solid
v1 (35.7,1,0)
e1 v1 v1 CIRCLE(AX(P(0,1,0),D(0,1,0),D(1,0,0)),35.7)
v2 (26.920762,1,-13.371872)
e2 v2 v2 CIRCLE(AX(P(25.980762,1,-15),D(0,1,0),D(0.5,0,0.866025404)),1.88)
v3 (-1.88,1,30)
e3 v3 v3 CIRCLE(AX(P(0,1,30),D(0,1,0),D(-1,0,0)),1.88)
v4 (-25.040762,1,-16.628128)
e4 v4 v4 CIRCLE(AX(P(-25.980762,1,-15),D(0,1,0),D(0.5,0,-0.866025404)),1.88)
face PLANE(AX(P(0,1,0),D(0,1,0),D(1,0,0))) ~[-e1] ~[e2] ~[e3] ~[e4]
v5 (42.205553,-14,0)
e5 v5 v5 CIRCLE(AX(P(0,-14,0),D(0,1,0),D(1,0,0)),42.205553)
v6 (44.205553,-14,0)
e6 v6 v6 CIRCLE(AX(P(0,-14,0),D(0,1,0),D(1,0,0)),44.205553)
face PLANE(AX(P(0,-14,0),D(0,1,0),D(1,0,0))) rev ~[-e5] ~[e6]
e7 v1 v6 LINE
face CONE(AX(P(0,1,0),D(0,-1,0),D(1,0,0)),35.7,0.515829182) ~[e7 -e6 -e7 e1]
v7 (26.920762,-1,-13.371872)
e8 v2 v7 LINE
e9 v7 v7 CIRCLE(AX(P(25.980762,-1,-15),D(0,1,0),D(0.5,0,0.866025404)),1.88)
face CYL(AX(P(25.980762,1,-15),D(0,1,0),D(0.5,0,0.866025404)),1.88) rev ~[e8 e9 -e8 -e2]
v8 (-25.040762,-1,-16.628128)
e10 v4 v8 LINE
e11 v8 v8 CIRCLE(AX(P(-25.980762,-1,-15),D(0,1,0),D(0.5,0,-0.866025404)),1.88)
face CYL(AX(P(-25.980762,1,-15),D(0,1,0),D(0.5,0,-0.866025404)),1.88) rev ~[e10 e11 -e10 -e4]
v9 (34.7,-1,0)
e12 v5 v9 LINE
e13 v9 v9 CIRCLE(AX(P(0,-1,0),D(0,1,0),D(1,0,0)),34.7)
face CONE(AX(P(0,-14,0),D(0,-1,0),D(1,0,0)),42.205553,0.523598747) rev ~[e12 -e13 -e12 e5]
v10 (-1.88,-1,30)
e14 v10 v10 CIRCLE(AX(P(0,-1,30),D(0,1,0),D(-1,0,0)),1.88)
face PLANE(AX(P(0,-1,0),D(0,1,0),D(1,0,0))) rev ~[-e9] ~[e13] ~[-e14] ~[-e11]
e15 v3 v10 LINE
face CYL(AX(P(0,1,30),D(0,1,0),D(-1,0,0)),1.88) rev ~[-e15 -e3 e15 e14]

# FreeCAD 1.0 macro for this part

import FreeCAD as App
import Part
import Sketcher
from FreeCAD import Vector
Q = App.Units.Quantity


def add_polygon(sketch, points):
    """Adds a closed chain of lines whose ends are joined by coincident constraints."""
    first, n = sketch.GeometryCount, len(points)
    for a, b in zip(points, points[1:] + points[:1]):
        sketch.addGeometry(Part.LineSegment(App.Vector(*a, 0), App.Vector(*b, 0)), False)
    for i in range(n):
        sketch.addConstraint(Sketcher.Constraint("Coincident", first + i, 2, first + (i + 1) % n, 1))

doc = App.newDocument("Part")
params = doc.addObject("Spreadsheet::Sheet", "Params")
for row, (alias, value) in enumerate([
    ("sketch1_width", "2 mm"),
    ("sketch1_width2", "35.7 mm"),
    ("sketch1_width3", "34.7 mm"),
    ("revolution_angle", "360 deg"),
    ("sketch2_diameter", "3.76 mm"),
], start=1):
    params.set(f"A{row}", alias)
    params.set(f"B{row}", "=" + value)
    params.setAlias(f"B{row}", alias)

body = doc.addObject("PartDesign::Body", "Body")

# Sketch on XY plane
sketch1 = body.newObject("Sketcher::SketchObject", "Sketch")
sketch1.AttachmentSupport = (doc.getObject("XY_Plane"), [""])
sketch1.MapMode = "FlatFace"
add_polygon(sketch1, [(35.7, 1), (0, 1), (0, -1), (34.7, -1), (42.2, -14), (44.2, -14)])  # lines 0-5
sketch1.addConstraint(Sketcher.Constraint("Horizontal", 0))
sketch1.addConstraint(Sketcher.Constraint("Vertical", 1))
sketch1.addConstraint(Sketcher.Constraint("Horizontal", 2))
sketch1.addConstraint(Sketcher.Constraint("Horizontal", 4))
sketch1.addConstraint(Sketcher.Constraint("Symmetric", 0, 2, 1, 2, -1, 1))
sketch1.addConstraint(Sketcher.Constraint("Equal", 4, 1))
sketch1.addConstraint(Sketcher.Constraint("DistanceX", 4, 1, 4, 2, Q("2 mm")))
sketch1.addConstraint(Sketcher.Constraint("Angle", 3, Q("-60.000002 deg")))
sketch1.addConstraint(Sketcher.Constraint("DistanceX", 0, 2, 0, 1, Q("35.7 mm")))
sketch1.addConstraint(Sketcher.Constraint("DistanceX", 2, 1, 2, 2, Q("34.7 mm")))
sketch1.addConstraint(Sketcher.Constraint("DistanceY", 3, 2, -1, 1, Q("14 mm")))
sketch1.setExpression("Constraints[12]", "Params.sketch1_width")
sketch1.setExpression("Constraints[14]", "Params.sketch1_width2")
sketch1.setExpression("Constraints[15]", "Params.sketch1_width3")
revolution = body.newObject("PartDesign::Revolution", "Revolution")
revolution.Profile = sketch1
revolution.ReferenceAxis = (sketch1, ["V_Axis"])
revolution.setExpression("Angle", "Params.revolution_angle")

# Sketch on XZ plane
sketch2 = body.newObject("Sketcher::SketchObject", "Sketch001")
sketch2.AttachmentSupport = (doc.getObject("XZ_Plane"), [""])
sketch2.MapMode = "FlatFace"
sketch2.AttachmentOffset = App.Placement(Vector(0, 0, -1), App.Rotation())
sketch2.addGeometry(Part.Circle(Vector(0, 30, 0), Vector(0, 0, 1), 1.9), False)
sketch2.addConstraint(Sketcher.Constraint("PointOnObject", 0, 3, -2))
sketch2.addConstraint(Sketcher.Constraint("Diameter", 0, Q("3.76 mm")))
sketch2.addConstraint(Sketcher.Constraint("DistanceY", -1, 1, 0, 3, Q("30 mm")))
sketch2.setExpression("Constraints[1]", "Params.sketch2_diameter")
pocket1 = body.newObject("PartDesign::Pocket", "Pocket")
pocket1.Profile = sketch2
pocket1.Type = "ThroughAll"
pocket1.Reversed = True
doc.recompute()

polarpattern = body.newObject("PartDesign::PolarPattern", "PolarPattern")
polarpattern.Originals = [pocket1]
polarpattern.Axis = (doc.getObject("Y_Axis"), [""])
polarpattern.Angle = 360
polarpattern.Occurrences = 3
body.Tip = polarpattern

doc.recompute()
